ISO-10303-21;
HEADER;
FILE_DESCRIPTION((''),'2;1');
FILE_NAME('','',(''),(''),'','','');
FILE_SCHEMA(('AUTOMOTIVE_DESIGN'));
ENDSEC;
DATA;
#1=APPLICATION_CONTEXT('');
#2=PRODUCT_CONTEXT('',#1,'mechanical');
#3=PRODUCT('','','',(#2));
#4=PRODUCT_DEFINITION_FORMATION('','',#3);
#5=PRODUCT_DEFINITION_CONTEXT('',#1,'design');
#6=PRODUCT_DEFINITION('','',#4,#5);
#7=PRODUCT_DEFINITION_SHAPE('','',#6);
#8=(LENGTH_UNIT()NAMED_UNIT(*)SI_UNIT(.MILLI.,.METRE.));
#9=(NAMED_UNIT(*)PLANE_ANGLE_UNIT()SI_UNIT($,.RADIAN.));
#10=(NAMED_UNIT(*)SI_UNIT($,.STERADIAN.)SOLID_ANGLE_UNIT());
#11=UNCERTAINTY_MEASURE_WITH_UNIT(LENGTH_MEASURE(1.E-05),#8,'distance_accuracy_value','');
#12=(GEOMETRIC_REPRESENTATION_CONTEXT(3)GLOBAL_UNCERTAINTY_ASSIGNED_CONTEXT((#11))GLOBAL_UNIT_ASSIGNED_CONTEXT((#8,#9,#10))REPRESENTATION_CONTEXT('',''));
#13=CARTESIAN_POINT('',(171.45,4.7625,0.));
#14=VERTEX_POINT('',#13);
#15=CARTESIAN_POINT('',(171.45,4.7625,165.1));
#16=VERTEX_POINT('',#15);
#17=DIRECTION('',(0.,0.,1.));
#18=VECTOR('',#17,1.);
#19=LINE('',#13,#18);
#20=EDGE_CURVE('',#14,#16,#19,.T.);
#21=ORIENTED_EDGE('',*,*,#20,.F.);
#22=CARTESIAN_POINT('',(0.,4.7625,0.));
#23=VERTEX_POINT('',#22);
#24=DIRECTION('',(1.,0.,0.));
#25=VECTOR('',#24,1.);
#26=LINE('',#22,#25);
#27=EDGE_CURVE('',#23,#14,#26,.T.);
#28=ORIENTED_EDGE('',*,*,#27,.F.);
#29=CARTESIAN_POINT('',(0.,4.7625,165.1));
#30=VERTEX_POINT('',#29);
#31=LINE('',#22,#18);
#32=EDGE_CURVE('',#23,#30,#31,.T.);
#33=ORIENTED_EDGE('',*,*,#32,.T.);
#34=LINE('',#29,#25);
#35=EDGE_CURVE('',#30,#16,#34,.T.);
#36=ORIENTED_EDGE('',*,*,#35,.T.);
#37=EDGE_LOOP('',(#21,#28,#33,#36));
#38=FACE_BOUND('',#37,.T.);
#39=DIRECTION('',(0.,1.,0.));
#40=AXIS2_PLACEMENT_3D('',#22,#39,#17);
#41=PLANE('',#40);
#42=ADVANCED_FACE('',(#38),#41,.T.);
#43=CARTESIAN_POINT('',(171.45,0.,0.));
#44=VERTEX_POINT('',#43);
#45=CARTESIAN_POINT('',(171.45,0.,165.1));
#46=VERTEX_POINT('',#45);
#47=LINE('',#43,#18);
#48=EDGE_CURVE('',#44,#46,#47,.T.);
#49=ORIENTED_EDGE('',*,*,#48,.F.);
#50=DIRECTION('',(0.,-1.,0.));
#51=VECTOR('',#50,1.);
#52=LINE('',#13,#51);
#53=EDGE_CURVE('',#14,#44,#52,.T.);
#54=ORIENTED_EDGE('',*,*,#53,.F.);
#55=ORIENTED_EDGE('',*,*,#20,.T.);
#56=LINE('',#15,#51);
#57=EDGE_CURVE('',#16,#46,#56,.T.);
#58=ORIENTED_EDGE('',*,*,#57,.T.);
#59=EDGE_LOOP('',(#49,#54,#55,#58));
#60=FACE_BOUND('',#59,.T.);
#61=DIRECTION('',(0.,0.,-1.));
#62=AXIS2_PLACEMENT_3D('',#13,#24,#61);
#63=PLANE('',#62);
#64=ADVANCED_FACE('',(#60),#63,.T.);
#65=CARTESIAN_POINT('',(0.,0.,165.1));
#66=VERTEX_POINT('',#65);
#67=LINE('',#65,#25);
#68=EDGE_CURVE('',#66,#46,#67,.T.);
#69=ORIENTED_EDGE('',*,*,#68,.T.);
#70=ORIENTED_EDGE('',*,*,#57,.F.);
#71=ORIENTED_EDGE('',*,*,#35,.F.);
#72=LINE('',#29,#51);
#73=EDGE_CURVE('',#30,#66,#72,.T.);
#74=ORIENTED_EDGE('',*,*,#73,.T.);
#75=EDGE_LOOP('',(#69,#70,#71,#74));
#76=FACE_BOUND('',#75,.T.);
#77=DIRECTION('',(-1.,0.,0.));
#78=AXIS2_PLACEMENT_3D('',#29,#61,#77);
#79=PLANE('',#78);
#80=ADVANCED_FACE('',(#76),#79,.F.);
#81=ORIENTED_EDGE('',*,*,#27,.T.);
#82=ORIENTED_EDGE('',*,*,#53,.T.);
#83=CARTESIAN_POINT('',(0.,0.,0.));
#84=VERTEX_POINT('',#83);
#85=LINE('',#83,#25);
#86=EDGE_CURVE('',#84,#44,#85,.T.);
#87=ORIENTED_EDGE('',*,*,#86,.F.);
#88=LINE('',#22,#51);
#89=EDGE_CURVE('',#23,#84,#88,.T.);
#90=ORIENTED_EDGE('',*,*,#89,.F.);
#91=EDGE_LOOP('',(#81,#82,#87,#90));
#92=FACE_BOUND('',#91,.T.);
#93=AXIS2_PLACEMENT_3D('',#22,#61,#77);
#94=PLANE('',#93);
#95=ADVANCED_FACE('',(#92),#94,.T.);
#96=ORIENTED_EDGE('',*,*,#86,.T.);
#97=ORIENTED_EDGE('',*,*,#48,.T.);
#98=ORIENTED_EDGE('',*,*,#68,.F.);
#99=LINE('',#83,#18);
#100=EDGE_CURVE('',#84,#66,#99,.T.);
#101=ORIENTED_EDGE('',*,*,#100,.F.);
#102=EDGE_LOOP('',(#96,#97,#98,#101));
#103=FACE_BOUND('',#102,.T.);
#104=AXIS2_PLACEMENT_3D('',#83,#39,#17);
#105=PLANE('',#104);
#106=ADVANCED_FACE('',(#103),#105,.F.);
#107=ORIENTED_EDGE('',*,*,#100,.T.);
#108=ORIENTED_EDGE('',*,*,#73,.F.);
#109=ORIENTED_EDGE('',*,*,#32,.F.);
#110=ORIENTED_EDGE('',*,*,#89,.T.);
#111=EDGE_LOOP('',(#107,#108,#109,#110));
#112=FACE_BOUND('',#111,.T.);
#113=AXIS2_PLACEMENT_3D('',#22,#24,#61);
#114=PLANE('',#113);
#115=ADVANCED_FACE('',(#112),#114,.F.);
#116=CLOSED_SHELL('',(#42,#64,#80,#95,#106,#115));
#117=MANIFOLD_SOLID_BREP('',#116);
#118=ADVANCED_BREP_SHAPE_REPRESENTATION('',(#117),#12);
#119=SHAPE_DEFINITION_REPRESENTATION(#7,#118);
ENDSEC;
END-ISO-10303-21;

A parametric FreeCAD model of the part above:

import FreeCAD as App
import Part
import Sketcher

V = App.Vector
Q = App.Units.Quantity


def add_polygon(sketch, points):
    """Adds a closed chain of lines whose ends are joined by coincident constraints."""
    first, n = sketch.GeometryCount, len(points)
    for a, b in zip(points, points[1:] + points[:1]):
        sketch.addGeometry(Part.LineSegment(App.Vector(*a, 0), App.Vector(*b, 0)), False)
    for i in range(n):
        sketch.addConstraint(Sketcher.Constraint("Coincident", first + i, 2, first + (i + 1) % n, 1))

doc = App.newDocument("Part")
params = doc.addObject("Spreadsheet::Sheet", "Params")
for row, (alias, value) in enumerate([
    ("sketch1_height", "6.5 in"),
    ("sketch1_width", "6.75 in"),
    ("pad1_length", "0.1875 in"),
], start=1):
    params.set(f"A{row}", alias)
    params.set(f"B{row}", "=" + value)
    params.setAlias(f"B{row}", alias)

body = doc.addObject("PartDesign::Body", "Body")

# Sketch on XZ plane
sketch1 = body.newObject("Sketcher::SketchObject", "Sketch")
sketch1.AttachmentSupport = (doc.getObject("XZ_Plane"), [""])
sketch1.MapMode = "FlatFace"
add_polygon(sketch1, [(0, 0), (0, 165), (171, 165), (171, 0)])  # lines 0-3
sketch1.addConstraint(Sketcher.Constraint("Vertical", 0))
sketch1.addConstraint(Sketcher.Constraint("Horizontal", 1))
sketch1.addConstraint(Sketcher.Constraint("Vertical", 2))
sketch1.addConstraint(Sketcher.Constraint("Horizontal", 3))
sketch1.addConstraint(Sketcher.Constraint("Coincident", 3, 2, -1, 1))
sketch1.addConstraint(Sketcher.Constraint("DistanceY", 0, 1, 0, 2, Q("6.5 in")))
sketch1.addConstraint(Sketcher.Constraint("DistanceX", 1, 1, 1, 2, Q("6.75 in")))
sketch1.setExpression("Constraints[9]", "Params.sketch1_height")
sketch1.setExpression("Constraints[10]", "Params.sketch1_width")
pad1 = body.newObject("PartDesign::Pad", "Pad")
pad1.Profile = sketch1
pad1.setExpression("Length", "Params.pad1_length")
pad1.Reversed = True

doc.recompute()
